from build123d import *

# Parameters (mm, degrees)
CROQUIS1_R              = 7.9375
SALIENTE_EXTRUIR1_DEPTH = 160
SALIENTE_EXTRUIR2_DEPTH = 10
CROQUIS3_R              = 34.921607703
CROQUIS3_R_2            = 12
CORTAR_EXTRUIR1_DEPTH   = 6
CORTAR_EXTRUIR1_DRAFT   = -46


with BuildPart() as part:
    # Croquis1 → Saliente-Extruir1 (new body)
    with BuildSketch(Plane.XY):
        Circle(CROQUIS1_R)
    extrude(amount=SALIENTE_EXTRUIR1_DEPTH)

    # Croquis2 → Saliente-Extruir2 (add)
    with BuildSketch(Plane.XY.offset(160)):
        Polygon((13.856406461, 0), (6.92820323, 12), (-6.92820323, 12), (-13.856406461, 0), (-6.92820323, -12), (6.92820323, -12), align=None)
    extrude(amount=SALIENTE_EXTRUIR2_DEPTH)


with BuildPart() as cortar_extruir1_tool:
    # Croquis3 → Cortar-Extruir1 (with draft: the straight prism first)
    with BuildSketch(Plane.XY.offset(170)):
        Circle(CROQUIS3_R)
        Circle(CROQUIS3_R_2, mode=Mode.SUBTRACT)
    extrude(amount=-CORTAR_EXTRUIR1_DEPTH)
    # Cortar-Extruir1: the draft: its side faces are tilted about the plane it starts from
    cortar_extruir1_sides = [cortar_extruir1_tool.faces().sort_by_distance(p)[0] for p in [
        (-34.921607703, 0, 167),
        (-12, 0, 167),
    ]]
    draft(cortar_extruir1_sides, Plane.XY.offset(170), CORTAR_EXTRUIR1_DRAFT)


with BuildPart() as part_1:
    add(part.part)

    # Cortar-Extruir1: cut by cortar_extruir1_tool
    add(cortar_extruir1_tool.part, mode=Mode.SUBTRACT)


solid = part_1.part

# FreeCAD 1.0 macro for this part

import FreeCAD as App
import Part
import Sketcher
Q = App.Units.Quantity


def faces_at(feature, points):
    """Names of the faces that lie closest to the given points."""
    faces = feature.Shape.Faces
    near = lambda p: min(range(len(faces)), key=lambda i: faces[i].distToShape(Part.Vertex(*p))[0])
    return sorted({f"Face{near(p) + 1}" for p in points})

doc = App.newDocument("Part")
body = doc.addObject("PartDesign::Body", "Body")

# Sketch on XY plane
sketch1 = body.newObject("Sketcher::SketchObject", "Sketch")
sketch1.AttachmentSupport = (doc.getObject("XY_Plane"), [""])
sketch1.MapMode = "FlatFace"
sketch1.addGeometry(Part.Circle(App.Vector(0, 0, 0), App.Vector(0, 0, 1), 8), False)
sketch1.addConstraint([
    Sketcher.Constraint("Coincident", 0, 3, -1, 1),
    Sketcher.Constraint("Diameter", 0, 15.875),
])
pad1 = body.newObject("PartDesign::Pad", "Pad")
pad1.Profile = sketch1
pad1.Length = 160

# Sketch on XY plane
sketch2 = body.newObject("Sketcher::SketchObject", "Sketch001")
sketch2.AttachmentSupport = (doc.getObject("XY_Plane"), [""])
sketch2.MapMode = "FlatFace"
sketch2.AttachmentOffset = App.Placement(App.Vector(0, 0, 160), App.Rotation())
sketch2.addGeometry([
    Part.LineSegment(App.Vector(14, 0, 0), App.Vector(7, 12, 0)),  # 0
    Part.LineSegment(App.Vector(7, 12, 0), App.Vector(-7, 12, 0)),  # 1
    Part.LineSegment(App.Vector(-7, 12, 0), App.Vector(-14, 0, 0)),  # 2
    Part.LineSegment(App.Vector(-14, 0, 0), App.Vector(-7, -12, 0)),  # 3
    Part.LineSegment(App.Vector(-7, -12, 0), App.Vector(7, -12, 0)),  # 4
    Part.LineSegment(App.Vector(7, -12, 0), App.Vector(14, 0, 0)),  # 5
], False)
sketch2.addConstraint([
    Sketcher.Constraint("Coincident", 0, 2, 1, 1),
    Sketcher.Constraint("Coincident", 1, 2, 2, 1),
    Sketcher.Constraint("Coincident", 2, 2, 3, 1),
    Sketcher.Constraint("Coincident", 3, 2, 4, 1),
    Sketcher.Constraint("Coincident", 4, 2, 5, 1),
    Sketcher.Constraint("Coincident", 5, 2, 0, 1),
    Sketcher.Constraint("Horizontal", 1),
    Sketcher.Constraint("Horizontal", 4),
    Sketcher.Constraint("Symmetric", 0, 2, 3, 2, -1, 1),
    Sketcher.Constraint("Symmetric", 2, 2, 5, 2, -1, 1),
    Sketcher.Constraint("PointOnObject", 2, 2, -1),
    Sketcher.Constraint("Parallel", 2, 5),
    Sketcher.Constraint("Vertical", 1, 2, 3, 2),
    Sketcher.Constraint("Angle", 0, Q("120 deg")),
    Sketcher.Constraint("DistanceY", -1, 1, 0, 2, 12.0),
    Sketcher.Constraint("DistanceX", 1, 2, 1, 1, 13.856406),
])
pad2 = body.newObject("PartDesign::Pad", "Pad001")
pad2.Profile = sketch2
pad2.Length = 10
body2 = doc.addObject("PartDesign::Body", "Body001")

# Sketch on XY plane
sketch3 = body2.newObject("Sketcher::SketchObject", "Sketch002")
sketch3.AttachmentSupport = (doc.getObject("XY_Plane001"), [""])
sketch3.MapMode = "FlatFace"
sketch3.AttachmentOffset = App.Placement(App.Vector(0, 0, 170), App.Rotation())
sketch3.addGeometry([
    Part.Circle(App.Vector(0, 0, 0), App.Vector(0, 0, 1), 35),
    Part.Circle(App.Vector(0, 0, 0), App.Vector(0, 0, 1), 12),
], False)
sketch3.addConstraint([
    Sketcher.Constraint("Coincident", 0, 3, -1, 1),
    Sketcher.Constraint("Coincident", 1, 3, -1, 1),
    Sketcher.Constraint("Diameter", 1, 24.0),
    Sketcher.Constraint("Diameter", 0, 69.843215),
])
pad3 = body2.newObject("PartDesign::Pad", "Pad002")
pad3.Profile = sketch3
pad3.Length = 6
pad3.Reversed = True
doc.recompute()

datumplane = body2.newObject("PartDesign::Plane", "DatumPlane")
datumplane.AttachmentSupport = (doc.getObject("XY_Plane001"), [""])
datumplane.MapMode = "FlatFace"
datumplane.AttachmentOffset = App.Placement(App.Vector(0, 0, 170), App.Rotation())
draft = body2.newObject("PartDesign::Draft", "Draft")
draft.Base = (pad3, faces_at(pad3, [(-34.922, 0, 167), (-12, 0, 167)]))
draft.NeutralPlane = (datumplane, [""])
draft.Angle = 46
draft.Reversed = True
doc.recompute()

boolean = body.newObject("PartDesign::Boolean", "Boolean")
boolean.Type = "Cut"
boolean.addObjects([body2])

doc.recompute()
